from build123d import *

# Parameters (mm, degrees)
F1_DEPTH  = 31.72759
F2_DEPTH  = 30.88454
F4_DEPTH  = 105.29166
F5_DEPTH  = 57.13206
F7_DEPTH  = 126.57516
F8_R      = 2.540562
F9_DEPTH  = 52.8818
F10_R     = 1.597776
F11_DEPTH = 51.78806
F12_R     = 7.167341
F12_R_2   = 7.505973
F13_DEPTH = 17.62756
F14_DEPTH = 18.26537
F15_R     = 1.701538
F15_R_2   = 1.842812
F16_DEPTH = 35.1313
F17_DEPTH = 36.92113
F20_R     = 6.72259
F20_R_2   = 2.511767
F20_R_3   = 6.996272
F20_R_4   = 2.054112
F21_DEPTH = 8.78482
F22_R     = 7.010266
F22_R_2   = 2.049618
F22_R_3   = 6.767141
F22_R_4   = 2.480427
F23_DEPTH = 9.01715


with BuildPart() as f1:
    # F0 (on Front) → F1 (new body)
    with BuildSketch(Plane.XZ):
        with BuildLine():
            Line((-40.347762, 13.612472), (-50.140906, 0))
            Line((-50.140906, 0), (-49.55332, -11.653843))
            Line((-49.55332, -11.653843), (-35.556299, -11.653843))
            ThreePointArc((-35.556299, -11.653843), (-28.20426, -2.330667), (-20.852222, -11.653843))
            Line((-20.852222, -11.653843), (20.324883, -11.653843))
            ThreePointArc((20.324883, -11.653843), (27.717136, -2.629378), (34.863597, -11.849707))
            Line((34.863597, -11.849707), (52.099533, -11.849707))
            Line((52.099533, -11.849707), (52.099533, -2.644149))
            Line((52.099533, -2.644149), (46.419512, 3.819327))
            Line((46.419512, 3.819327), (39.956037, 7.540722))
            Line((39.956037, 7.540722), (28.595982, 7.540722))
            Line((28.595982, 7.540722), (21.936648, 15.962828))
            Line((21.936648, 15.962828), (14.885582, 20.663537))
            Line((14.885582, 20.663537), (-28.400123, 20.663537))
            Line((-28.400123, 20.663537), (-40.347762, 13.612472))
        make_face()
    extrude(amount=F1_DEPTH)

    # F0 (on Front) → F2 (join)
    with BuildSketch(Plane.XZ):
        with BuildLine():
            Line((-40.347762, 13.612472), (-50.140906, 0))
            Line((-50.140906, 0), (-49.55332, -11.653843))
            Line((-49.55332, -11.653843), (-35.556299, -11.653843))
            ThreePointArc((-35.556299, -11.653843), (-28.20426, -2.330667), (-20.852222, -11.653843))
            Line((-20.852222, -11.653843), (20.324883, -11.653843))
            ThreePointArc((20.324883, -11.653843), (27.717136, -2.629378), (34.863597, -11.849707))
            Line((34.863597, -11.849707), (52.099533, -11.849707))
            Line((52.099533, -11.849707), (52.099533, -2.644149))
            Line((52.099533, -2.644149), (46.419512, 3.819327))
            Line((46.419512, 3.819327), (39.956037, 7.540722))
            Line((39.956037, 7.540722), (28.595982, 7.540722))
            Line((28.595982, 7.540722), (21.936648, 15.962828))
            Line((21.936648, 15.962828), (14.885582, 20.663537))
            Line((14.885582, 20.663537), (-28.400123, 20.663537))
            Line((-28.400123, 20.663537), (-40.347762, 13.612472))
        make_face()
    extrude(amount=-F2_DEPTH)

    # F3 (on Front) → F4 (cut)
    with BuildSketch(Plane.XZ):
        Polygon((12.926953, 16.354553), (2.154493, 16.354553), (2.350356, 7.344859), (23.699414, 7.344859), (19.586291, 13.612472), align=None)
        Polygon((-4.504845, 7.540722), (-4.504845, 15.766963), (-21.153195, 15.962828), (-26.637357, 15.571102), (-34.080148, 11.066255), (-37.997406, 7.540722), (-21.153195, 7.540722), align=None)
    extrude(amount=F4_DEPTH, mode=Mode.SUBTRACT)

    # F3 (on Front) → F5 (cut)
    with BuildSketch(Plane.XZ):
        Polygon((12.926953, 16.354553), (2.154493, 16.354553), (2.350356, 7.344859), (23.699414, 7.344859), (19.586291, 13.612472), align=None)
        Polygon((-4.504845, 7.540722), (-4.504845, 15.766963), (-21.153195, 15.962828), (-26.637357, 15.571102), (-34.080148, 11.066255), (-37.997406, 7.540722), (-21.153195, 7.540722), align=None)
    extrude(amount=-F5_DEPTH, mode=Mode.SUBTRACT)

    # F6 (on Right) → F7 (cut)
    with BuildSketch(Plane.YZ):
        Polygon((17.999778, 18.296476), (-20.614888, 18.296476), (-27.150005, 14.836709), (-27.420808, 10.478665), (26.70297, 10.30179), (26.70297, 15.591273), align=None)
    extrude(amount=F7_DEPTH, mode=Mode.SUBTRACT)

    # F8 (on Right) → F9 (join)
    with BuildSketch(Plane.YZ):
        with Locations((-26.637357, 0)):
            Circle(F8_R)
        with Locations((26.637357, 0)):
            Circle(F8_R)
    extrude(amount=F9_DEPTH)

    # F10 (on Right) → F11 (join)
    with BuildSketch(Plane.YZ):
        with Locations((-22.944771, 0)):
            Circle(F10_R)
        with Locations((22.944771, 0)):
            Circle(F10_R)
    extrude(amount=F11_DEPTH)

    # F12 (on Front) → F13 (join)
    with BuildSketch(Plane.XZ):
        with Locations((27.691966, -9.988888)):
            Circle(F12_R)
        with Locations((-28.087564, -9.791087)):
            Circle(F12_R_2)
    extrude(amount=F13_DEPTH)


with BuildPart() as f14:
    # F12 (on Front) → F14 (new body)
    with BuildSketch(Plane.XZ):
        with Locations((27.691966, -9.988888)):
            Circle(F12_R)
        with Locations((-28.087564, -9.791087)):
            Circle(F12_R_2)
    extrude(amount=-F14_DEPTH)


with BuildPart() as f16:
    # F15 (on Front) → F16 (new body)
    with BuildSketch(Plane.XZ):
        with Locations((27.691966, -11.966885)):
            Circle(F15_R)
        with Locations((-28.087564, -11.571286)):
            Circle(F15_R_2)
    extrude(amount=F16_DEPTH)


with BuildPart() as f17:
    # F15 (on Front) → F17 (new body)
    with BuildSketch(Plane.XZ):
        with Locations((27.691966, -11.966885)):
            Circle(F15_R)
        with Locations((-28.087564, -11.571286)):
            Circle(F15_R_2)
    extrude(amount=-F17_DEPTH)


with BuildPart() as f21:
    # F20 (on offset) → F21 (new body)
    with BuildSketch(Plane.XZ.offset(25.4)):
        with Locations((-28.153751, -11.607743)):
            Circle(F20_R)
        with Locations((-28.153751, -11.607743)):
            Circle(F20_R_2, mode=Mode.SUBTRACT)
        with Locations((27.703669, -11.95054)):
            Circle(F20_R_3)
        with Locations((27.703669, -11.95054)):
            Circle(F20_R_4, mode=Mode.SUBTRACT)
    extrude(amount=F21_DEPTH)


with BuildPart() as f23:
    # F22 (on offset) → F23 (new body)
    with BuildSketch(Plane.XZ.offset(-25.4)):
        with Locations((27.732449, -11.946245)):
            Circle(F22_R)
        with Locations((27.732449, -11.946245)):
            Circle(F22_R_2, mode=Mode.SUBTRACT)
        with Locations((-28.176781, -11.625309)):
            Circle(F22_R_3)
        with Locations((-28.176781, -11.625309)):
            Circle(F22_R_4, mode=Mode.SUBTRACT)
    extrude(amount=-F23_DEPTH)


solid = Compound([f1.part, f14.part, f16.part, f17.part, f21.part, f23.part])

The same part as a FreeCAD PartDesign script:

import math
import FreeCAD as App
import Part
import Sketcher
from FreeCAD import Vector


def add_polygon(sketch, points):
    """Adds a closed chain of lines whose ends are joined by coincident constraints."""
    first, n = sketch.GeometryCount, len(points)
    for a, b in zip(points, points[1:] + points[:1]):
        sketch.addGeometry(Part.LineSegment(App.Vector(*a, 0), App.Vector(*b, 0)), False)
    for i in range(n):
        sketch.addConstraint(Sketcher.Constraint("Coincident", first + i, 2, first + (i + 1) % n, 1))

doc = App.newDocument("Part")
body = doc.addObject("PartDesign::Body", "Body")
body.AllowCompound = True

sketch1 = doc.addObject("Sketcher::SketchObject", "Sketch")
body.addObject(sketch1)
sketch1.AttachmentSupport = (doc.XZ_Plane, [""])
sketch1.MapMode = "FlatFace"
sketch1.addGeometry([
    Part.LineSegment(Vector(-40, 14, 0), Vector(-50, 0, 0)),
    Part.LineSegment(Vector(-50, 0, 0), Vector(-50, -12, 0)),
    Part.LineSegment(Vector(-50, -12, 0), Vector(-36, -12, 0)),
    Part.ArcOfCircle(Part.Circle(Vector(-28, -10, 0), Vector(0, 0, 1), 8), math.radians(-13), math.radians(193)),
    Part.LineSegment(Vector(-21, -12, 0), Vector(20, -12, 0)),
    Part.ArcOfCircle(Part.Circle(Vector(28, -10, 0), Vector(0, 0, 1), 7), math.radians(-14), math.radians(192)),
    Part.LineSegment(Vector(35, -12, 0), Vector(52, -12, 0)),
    Part.LineSegment(Vector(52, -12, 0), Vector(52, -3, 0)),
    Part.LineSegment(Vector(52, -3, 0), Vector(46, 4, 0)),
    Part.LineSegment(Vector(46, 4, 0), Vector(40, 8, 0)),
    Part.LineSegment(Vector(40, 8, 0), Vector(29, 8, 0)),
    Part.LineSegment(Vector(29, 8, 0), Vector(22, 16, 0)),
    Part.LineSegment(Vector(22, 16, 0), Vector(15, 21, 0)),
    Part.LineSegment(Vector(15, 21, 0), Vector(-28, 21, 0)),
    Part.LineSegment(Vector(-28, 21, 0), Vector(-40, 14, 0)),
], False)
sketch1.addConstraint([
    Sketcher.Constraint("Coincident", 0, 2, 1, 1),
    Sketcher.Constraint("Coincident", 1, 2, 2, 1),
    Sketcher.Constraint("Coincident", 2, 2, 3, 2),
    Sketcher.Constraint("Coincident", 3, 1, 4, 1),
    Sketcher.Constraint("Coincident", 4, 2, 5, 2),
    Sketcher.Constraint("Coincident", 5, 1, 6, 1),
    Sketcher.Constraint("Coincident", 6, 2, 7, 1),
    Sketcher.Constraint("Coincident", 7, 2, 8, 1),
    Sketcher.Constraint("Coincident", 8, 2, 9, 1),
    Sketcher.Constraint("Coincident", 9, 2, 10, 1),
    Sketcher.Constraint("Coincident", 10, 2, 11, 1),
    Sketcher.Constraint("Coincident", 11, 2, 12, 1),
    Sketcher.Constraint("Coincident", 12, 2, 13, 1),
    Sketcher.Constraint("Coincident", 13, 2, 14, 1),
    Sketcher.Constraint("Coincident", 14, 2, 0, 1),
    Sketcher.Constraint("Horizontal", 2),
    Sketcher.Constraint("Horizontal", 4),
    Sketcher.Constraint("Horizontal", 6),
    Sketcher.Constraint("Vertical", 7),
    Sketcher.Constraint("Horizontal", 10),
    Sketcher.Constraint("Horizontal", 13),
    Sketcher.Constraint("PointOnObject", 0, 2, -1),
    Sketcher.Constraint("Horizontal", 2, 2, 3, 1),
    Sketcher.Constraint("Radius", 3, 7.560411),
    Sketcher.Constraint("Radius", 5, 7.458238),
    Sketcher.Constraint("Distance", 8, 8.604601),
    Sketcher.Constraint("DistanceX", 2, 1, 2, 2, 13.997021),
    Sketcher.Constraint("DistanceX", 2, 2, -1, 1, 35.556299),
    Sketcher.Constraint("DistanceX", 1, 2, 3, 1, 28.701098),
    Sketcher.Constraint("DistanceX", 4, 2, 10, 2, 8.271099),
    Sketcher.Constraint("DistanceY", 8, 2, 11, 2, 12.143501),
    Sketcher.Constraint("DistanceX", 12, 2, 10, 2, 13.7104),
    Sketcher.Constraint("DistanceX", 13, 2, 3, 1, 7.547901),
    Sketcher.Constraint("DistanceX", 14, 2, 3, 3, 12.143502),
    Sketcher.Constraint("Distance", 0, 16.76917),
    Sketcher.Constraint("DistanceX", 4, 1, 4, 2, 41.177105),
    Sketcher.Constraint("DistanceX", 6, 1, 6, 2, 17.235936),
    Sketcher.Constraint("DistanceX", 10, 2, 10, 1, 11.360055),
    Sketcher.Constraint("DistanceY", 7, 1, 7, 2, 9.205558),
    Sketcher.Constraint("DistanceX", -1, 1, 5, 3, 27.616668),
    Sketcher.Constraint("DistanceY", 5, 3, -1, 1, 10.08694),
    Sketcher.Constraint("DistanceY", 7, 2, -1, 1, 2.644149),
    Sketcher.Constraint("DistanceX", -1, 1, 8, 2, 46.419512),
    Sketcher.Constraint("DistanceY", -1, 1, 9, 2, 7.540722),
    Sketcher.Constraint("DistanceX", -1, 1, 11, 2, 21.936648),
    Sketcher.Constraint("DistanceY", 11, 2, 12, 2, 4.700709),
    Sketcher.Constraint("DistanceY", 3, 3, 14, 2, 23.50355),
])
pad1 = doc.addObject("PartDesign::Pad", "Pad")
body.addObject(pad1)
pad1.Profile = sketch1
pad1.Length = 31.72759

sketch2 = doc.addObject("Sketcher::SketchObject", "Sketch001")
body.addObject(sketch2)
sketch2.AttachmentSupport = (doc.XZ_Plane, [""])
sketch2.MapMode = "FlatFace"
sketch2.addGeometry([
    Part.LineSegment(Vector(-40, 14, 0), Vector(-50, 0, 0)),
    Part.LineSegment(Vector(-50, 0, 0), Vector(-50, -12, 0)),
    Part.LineSegment(Vector(-50, -12, 0), Vector(-36, -12, 0)),
    Part.ArcOfCircle(Part.Circle(Vector(-28, -10, 0), Vector(0, 0, 1), 8), math.radians(-13), math.radians(193)),
    Part.LineSegment(Vector(-21, -12, 0), Vector(20, -12, 0)),
    Part.ArcOfCircle(Part.Circle(Vector(28, -10, 0), Vector(0, 0, 1), 7), math.radians(-14), math.radians(192)),
    Part.LineSegment(Vector(35, -12, 0), Vector(52, -12, 0)),
    Part.LineSegment(Vector(52, -12, 0), Vector(52, -3, 0)),
    Part.LineSegment(Vector(52, -3, 0), Vector(46, 4, 0)),
    Part.LineSegment(Vector(46, 4, 0), Vector(40, 8, 0)),
    Part.LineSegment(Vector(40, 8, 0), Vector(29, 8, 0)),
    Part.LineSegment(Vector(29, 8, 0), Vector(22, 16, 0)),
    Part.LineSegment(Vector(22, 16, 0), Vector(15, 21, 0)),
    Part.LineSegment(Vector(15, 21, 0), Vector(-28, 21, 0)),
    Part.LineSegment(Vector(-28, 21, 0), Vector(-40, 14, 0)),
], False)
sketch2.addConstraint([
    Sketcher.Constraint("Coincident", 0, 2, 1, 1),
    Sketcher.Constraint("Coincident", 1, 2, 2, 1),
    Sketcher.Constraint("Coincident", 2, 2, 3, 2),
    Sketcher.Constraint("Coincident", 3, 1, 4, 1),
    Sketcher.Constraint("Coincident", 4, 2, 5, 2),
    Sketcher.Constraint("Coincident", 5, 1, 6, 1),
    Sketcher.Constraint("Coincident", 6, 2, 7, 1),
    Sketcher.Constraint("Coincident", 7, 2, 8, 1),
    Sketcher.Constraint("Coincident", 8, 2, 9, 1),
    Sketcher.Constraint("Coincident", 9, 2, 10, 1),
    Sketcher.Constraint("Coincident", 10, 2, 11, 1),
    Sketcher.Constraint("Coincident", 11, 2, 12, 1),
    Sketcher.Constraint("Coincident", 12, 2, 13, 1),
    Sketcher.Constraint("Coincident", 13, 2, 14, 1),
    Sketcher.Constraint("Coincident", 14, 2, 0, 1),
    Sketcher.Constraint("Horizontal", 2),
    Sketcher.Constraint("Horizontal", 4),
    Sketcher.Constraint("Horizontal", 6),
    Sketcher.Constraint("Vertical", 7),
    Sketcher.Constraint("Horizontal", 10),
    Sketcher.Constraint("Horizontal", 13),
    Sketcher.Constraint("PointOnObject", 0, 2, -1),
    Sketcher.Constraint("Horizontal", 2, 2, 3, 1),
    Sketcher.Constraint("Radius", 3, 7.560411),
    Sketcher.Constraint("Radius", 5, 7.458238),
    Sketcher.Constraint("Distance", 8, 8.604601),
    Sketcher.Constraint("DistanceX", 2, 1, 2, 2, 13.997021),
    Sketcher.Constraint("DistanceX", 2, 2, -1, 1, 35.556299),
    Sketcher.Constraint("DistanceX", 1, 2, 3, 1, 28.701098),
    Sketcher.Constraint("DistanceX", 4, 2, 10, 2, 8.271099),
    Sketcher.Constraint("DistanceY", 8, 2, 11, 2, 12.143501),
    Sketcher.Constraint("DistanceX", 12, 2, 10, 2, 13.7104),
    Sketcher.Constraint("DistanceX", 13, 2, 3, 1, 7.547901),
    Sketcher.Constraint("DistanceX", 14, 2, 3, 3, 12.143502),
    Sketcher.Constraint("Distance", 0, 16.76917),
    Sketcher.Constraint("DistanceX", 4, 1, 4, 2, 41.177105),
    Sketcher.Constraint("DistanceX", 6, 1, 6, 2, 17.235936),
    Sketcher.Constraint("DistanceX", 10, 2, 10, 1, 11.360055),
    Sketcher.Constraint("DistanceY", 7, 1, 7, 2, 9.205558),
    Sketcher.Constraint("DistanceX", -1, 1, 5, 3, 27.616668),
    Sketcher.Constraint("DistanceY", 5, 3, -1, 1, 10.08694),
    Sketcher.Constraint("DistanceY", 7, 2, -1, 1, 2.644149),
    Sketcher.Constraint("DistanceX", -1, 1, 8, 2, 46.419512),
    Sketcher.Constraint("DistanceY", -1, 1, 9, 2, 7.540722),
    Sketcher.Constraint("DistanceX", -1, 1, 11, 2, 21.936648),
    Sketcher.Constraint("DistanceY", 11, 2, 12, 2, 4.700709),
    Sketcher.Constraint("DistanceY", 3, 3, 14, 2, 23.50355),
])
pad2 = doc.addObject("PartDesign::Pad", "Pad001")
body.addObject(pad2)
pad2.Profile = sketch2
pad2.Length = 30.88454
pad2.Reversed = True

sketch3 = doc.addObject("Sketcher::SketchObject", "Sketch002")
body.addObject(sketch3)
sketch3.AttachmentSupport = (doc.XZ_Plane, [""])
sketch3.MapMode = "FlatFace"
add_polygon(sketch3, [(13, 16), (2, 16), (2, 7), (24, 7), (20, 14)])
add_polygon(sketch3, [(-5, 8), (-5, 16), (-21, 16), (-27, 16), (-34, 11), (-38, 8)])
sketch3.addConstraint([
    Sketcher.Constraint("Horizontal", 0),
    Sketcher.Constraint("Horizontal", 2),
    Sketcher.Constraint("Vertical", 5),
    Sketcher.Constraint("Horizontal", 10),
    Sketcher.Constraint("DistanceX", 0, 2, 0, 1, 10.77246),
    Sketcher.Constraint("DistanceX", 10, 1, 10, 2, 33.492561),
    Sketcher.Constraint("DistanceY", 5, 1, 5, 2, 8.226241),
    Sketcher.Constraint("DistanceX", 0, 2, 3, 2, 17.431798),
    Sketcher.Constraint("DistanceX", 5, 2, 1, 2, 6.855201),
    Sketcher.Constraint("DistanceX", 5, 2, 4, 2, 17.431798),
    Sketcher.Constraint("Distance", 4, 7.201791),
    Sketcher.Constraint("Distance", 8, 8.69993),
    Sketcher.Constraint("DistanceX", 2, 1, 2, 2, 21.349058),
    Sketcher.Constraint("DistanceY", -1, 1, 1, 2, 7.344859),
    Sketcher.Constraint("DistanceX", -1, 1, 3, 2, 19.586291),
    Sketcher.Constraint("DistanceY", -1, 1, 9, 2, 7.540722),
    Sketcher.Constraint("DistanceY", 5, 2, 0, 2, 0.58759),
    Sketcher.Constraint("DistanceX", 6, 2, 5, 2, 16.64835),
    Sketcher.Constraint("DistanceY", 1, 2, 6, 2, 8.617969),
    Sketcher.Constraint("DistanceY", 7, 2, 5, 2, 0.195861),
    Sketcher.Constraint("DistanceX", 7, 2, 0, 2, 28.79185),
    Sketcher.Constraint("DistanceX", 8, 2, 7, 2, 7.442791),
])
pocket1 = doc.addObject("PartDesign::Pocket", "Pocket")
body.addObject(pocket1)
pocket1.Profile = sketch3
pocket1.Length = 105.29166
pocket1.Reversed = True

sketch4 = doc.addObject("Sketcher::SketchObject", "Sketch003")
body.addObject(sketch4)
sketch4.AttachmentSupport = (doc.XZ_Plane, [""])
sketch4.MapMode = "FlatFace"
add_polygon(sketch4, [(13, 16), (2, 16), (2, 7), (24, 7), (20, 14)])
add_polygon(sketch4, [(-5, 8), (-5, 16), (-21, 16), (-27, 16), (-34, 11), (-38, 8)])
sketch4.addConstraint([
    Sketcher.Constraint("Horizontal", 0),
    Sketcher.Constraint("Horizontal", 2),
    Sketcher.Constraint("Vertical", 5),
    Sketcher.Constraint("Horizontal", 10),
    Sketcher.Constraint("DistanceX", 0, 2, 0, 1, 10.77246),
    Sketcher.Constraint("DistanceX", 10, 1, 10, 2, 33.492561),
    Sketcher.Constraint("DistanceY", 5, 1, 5, 2, 8.226241),
    Sketcher.Constraint("DistanceX", 0, 2, 3, 2, 17.431798),
    Sketcher.Constraint("DistanceX", 5, 2, 1, 2, 6.855201),
    Sketcher.Constraint("DistanceX", 5, 2, 4, 2, 17.431798),
    Sketcher.Constraint("Distance", 4, 7.201791),
    Sketcher.Constraint("Distance", 8, 8.69993),
    Sketcher.Constraint("DistanceX", 2, 1, 2, 2, 21.349058),
    Sketcher.Constraint("DistanceY", -1, 1, 1, 2, 7.344859),
    Sketcher.Constraint("DistanceX", -1, 1, 3, 2, 19.586291),
    Sketcher.Constraint("DistanceY", -1, 1, 9, 2, 7.540722),
    Sketcher.Constraint("DistanceY", 5, 2, 0, 2, 0.58759),
    Sketcher.Constraint("DistanceX", 6, 2, 5, 2, 16.64835),
    Sketcher.Constraint("DistanceY", 1, 2, 6, 2, 8.617969),
    Sketcher.Constraint("DistanceY", 7, 2, 5, 2, 0.195861),
    Sketcher.Constraint("DistanceX", 7, 2, 0, 2, 28.79185),
    Sketcher.Constraint("DistanceX", 8, 2, 7, 2, 7.442791),
])
pocket2 = doc.addObject("PartDesign::Pocket", "Pocket001")
body.addObject(pocket2)
pocket2.Profile = sketch4
pocket2.Length = 57.13206

sketch5 = doc.addObject("Sketcher::SketchObject", "Sketch004")
body.addObject(sketch5)
sketch5.AttachmentSupport = (doc.YZ_Plane, [""])
sketch5.MapMode = "FlatFace"
add_polygon(sketch5, [(18, 18.3), (-20.6, 18.3), (-27.2, 14.8), (-27.4, 10.5), (26.7, 10.3), (26.7, 15.6)])
sketch5.addConstraint([
    Sketcher.Constraint("Horizontal", 0),
    Sketcher.Constraint("Vertical", 4),
    Sketcher.Constraint("Distance", 1, 7.39444),
    Sketcher.Constraint("Distance", 2, 4.36645),
    Sketcher.Constraint("DistanceX", 0, 2, 0, 1, 38.614666),
    Sketcher.Constraint("DistanceY", 4, 1, 4, 2, 5.289483),
    Sketcher.Constraint("DistanceX", 0, 2, -1, 1, 20.614888),
    Sketcher.Constraint("DistanceY", -1, 1, 1, 2, 14.836709),
    Sketcher.Constraint("DistanceX", 2, 2, -1, 1, 27.420808),
    Sketcher.Constraint("DistanceX", -1, 1, 3, 2, 26.70297),
    Sketcher.Constraint("DistanceY", -1, 1, 3, 2, 10.30179),
    Sketcher.Constraint("DistanceY", 2, 2, 0, 2, 7.817811),
])
pocket3 = doc.addObject("PartDesign::Pocket", "Pocket002")
body.addObject(pocket3)
pocket3.Profile = sketch5
pocket3.Length = 126.57516
pocket3.Reversed = True

sketch6 = doc.addObject("Sketcher::SketchObject", "Sketch005")
body.addObject(sketch6)
sketch6.AttachmentSupport = (doc.YZ_Plane, [""])
sketch6.MapMode = "FlatFace"
sketch6.addGeometry([
    Part.Circle(Vector(-26.6, 0, 0), Vector(0, 0, 1), 2.5),
    Part.Circle(Vector(26.6, 0, 0), Vector(0, 0, 1), 2.5),
], False)
sketch6.addConstraint([
    Sketcher.Constraint("Equal", 0, 1),
    Sketcher.Constraint("Symmetric", 0, 3, 1, 3, -1, 1),
    Sketcher.Constraint("PointOnObject", 0, 3, -1),
    Sketcher.Constraint("Diameter", 0, 5.081124),
    Sketcher.Constraint("DistanceX", 0, 3, -1, 1, 26.637357),
])
pad3 = doc.addObject("PartDesign::Pad", "Pad002")
body.addObject(pad3)
pad3.Profile = sketch6
pad3.Length = 52.8818

sketch7 = doc.addObject("Sketcher::SketchObject", "Sketch006")
body.addObject(sketch7)
sketch7.AttachmentSupport = (doc.YZ_Plane, [""])
sketch7.MapMode = "FlatFace"
sketch7.addGeometry([
    Part.Circle(Vector(-22.9, 0, 0), Vector(0, 0, 1), 1.6),
    Part.Circle(Vector(22.9, 0, 0), Vector(0, 0, 1), 1.6),
], False)
sketch7.addConstraint([
    Sketcher.Constraint("Equal", 0, 1),
    Sketcher.Constraint("Symmetric", 0, 3, 1, 3, -1, 1),
    Sketcher.Constraint("PointOnObject", 0, 3, -1),
    Sketcher.Constraint("Diameter", 0, 3.195552),
    Sketcher.Constraint("DistanceX", 0, 3, -1, 1, 22.944771),
])
pad4 = doc.addObject("PartDesign::Pad", "Pad003")
body.addObject(pad4)
pad4.Profile = sketch7
pad4.Length = 51.78806

sketch8 = doc.addObject("Sketcher::SketchObject", "Sketch007")
body.addObject(sketch8)
sketch8.AttachmentSupport = (doc.XZ_Plane, [""])
sketch8.MapMode = "FlatFace"
sketch8.addGeometry([
    Part.Circle(Vector(28, -10, 0), Vector(0, 0, 1), 7),
    Part.Circle(Vector(-28, -10, 0), Vector(0, 0, 1), 8),
], False)
sketch8.addConstraint([
    Sketcher.Constraint("Diameter", 0, 14.334682),
    Sketcher.Constraint("Diameter", 1, 15.011946),
    Sketcher.Constraint("DistanceY", 0, 3, 1, 3, 0.197801),
    Sketcher.Constraint("DistanceX", 1, 3, 0, 3, 55.77953),
    Sketcher.Constraint("DistanceX", -1, 1, 0, 3, 27.691966),
    Sketcher.Constraint("DistanceY", 0, 3, -1, 1, 9.988888),
])
pad5 = doc.addObject("PartDesign::Pad", "Pad004")
body.addObject(pad5)
pad5.Profile = sketch8
pad5.Length = 17.62756
body2 = doc.addObject("PartDesign::Body", "Body001")
body2.AllowCompound = True

sketch9 = doc.addObject("Sketcher::SketchObject", "Sketch008")
body2.addObject(sketch9)
sketch9.AttachmentSupport = (doc.getObject("XZ_Plane001"), [""])
sketch9.MapMode = "FlatFace"
sketch9.addGeometry([
    Part.Circle(Vector(28, -10, 0), Vector(0, 0, 1), 7),
    Part.Circle(Vector(-28, -10, 0), Vector(0, 0, 1), 8),
], False)
sketch9.addConstraint([
    Sketcher.Constraint("Diameter", 0, 14.334682),
    Sketcher.Constraint("Diameter", 1, 15.011946),
    Sketcher.Constraint("DistanceY", 0, 3, 1, 3, 0.197801),
    Sketcher.Constraint("DistanceX", 1, 3, 0, 3, 55.77953),
    Sketcher.Constraint("DistanceX", -1, 1, 0, 3, 27.691966),
    Sketcher.Constraint("DistanceY", 0, 3, -1, 1, 9.988888),
])
pad6 = doc.addObject("PartDesign::Pad", "Pad005")
body2.addObject(pad6)
pad6.Profile = sketch9
pad6.Length = 18.26537
pad6.Reversed = True
body3 = doc.addObject("PartDesign::Body", "Body002")
body3.AllowCompound = True

sketch10 = doc.addObject("Sketcher::SketchObject", "Sketch009")
body3.addObject(sketch10)
sketch10.AttachmentSupport = (doc.getObject("XZ_Plane002"), [""])
sketch10.MapMode = "FlatFace"
sketch10.addGeometry([
    Part.Circle(Vector(27.7, -12, 0), Vector(0, 0, 1), 1.7),
    Part.Circle(Vector(-28.1, -11.6, 0), Vector(0, 0, 1), 1.8),
], False)
sketch10.addConstraint([
    Sketcher.Constraint("Diameter", 0, 3.403076),
    Sketcher.Constraint("Diameter", 1, 3.685624),
    Sketcher.Constraint("DistanceY", 0, 3, 1, 3, 0.395599),
    Sketcher.Constraint("DistanceX", 1, 3, 0, 3, 55.77953),
    Sketcher.Constraint("DistanceX", -1, 1, 0, 3, 27.691966),
    Sketcher.Constraint("DistanceY", 0, 3, -1, 1, 11.966885),
])
pad7 = doc.addObject("PartDesign::Pad", "Pad006")
body3.addObject(pad7)
pad7.Profile = sketch10
pad7.Length = 35.1313
body4 = doc.addObject("PartDesign::Body", "Body003")
body4.AllowCompound = True

sketch11 = doc.addObject("Sketcher::SketchObject", "Sketch010")
body4.addObject(sketch11)
sketch11.AttachmentSupport = (doc.getObject("XZ_Plane003"), [""])
sketch11.MapMode = "FlatFace"
sketch11.addGeometry([
    Part.Circle(Vector(27.7, -12, 0), Vector(0, 0, 1), 1.7),
    Part.Circle(Vector(-28.1, -11.6, 0), Vector(0, 0, 1), 1.8),
], False)
sketch11.addConstraint([
    Sketcher.Constraint("Diameter", 0, 3.403076),
    Sketcher.Constraint("Diameter", 1, 3.685624),
    Sketcher.Constraint("DistanceY", 0, 3, 1, 3, 0.395599),
    Sketcher.Constraint("DistanceX", 1, 3, 0, 3, 55.77953),
    Sketcher.Constraint("DistanceX", -1, 1, 0, 3, 27.691966),
    Sketcher.Constraint("DistanceY", 0, 3, -1, 1, 11.966885),
])
pad8 = doc.addObject("PartDesign::Pad", "Pad007")
body4.addObject(pad8)
pad8.Profile = sketch11
pad8.Length = 36.92113
pad8.Reversed = True
body5 = doc.addObject("PartDesign::Body", "Body004")
body5.AllowCompound = True

sketch12 = doc.addObject("Sketcher::SketchObject", "Sketch011")
body5.addObject(sketch12)
sketch12.AttachmentSupport = (doc.getObject("XZ_Plane004"), [""])
sketch12.MapMode = "FlatFace"
sketch12.AttachmentOffset = App.Placement(Vector(0, 0, 25.4), App.Rotation())
sketch12.addGeometry([
    Part.Circle(Vector(-28.2, -11.6, 0), Vector(0, 0, 1), 6.7),
    Part.Circle(Vector(-28.2, -11.6, 0), Vector(0, 0, 1), 2.5),
    Part.Circle(Vector(27.7, -12, 0), Vector(0, 0, 1), 7),
    Part.Circle(Vector(27.7, -12, 0), Vector(0, 0, 1), 2.1),
], False)
sketch12.addConstraint([
    Sketcher.Constraint("Coincident", 1, 3, 0, 3),
    Sketcher.Constraint("Coincident", 3, 3, 2, 3),
    Sketcher.Constraint("Diameter", 0, 13.44518),
    Sketcher.Constraint("Diameter", 1, 5.023534),
    Sketcher.Constraint("Diameter", 2, 13.992544),
    Sketcher.Constraint("Diameter", 3, 4.108224),
    Sketcher.Constraint("DistanceX", 0, 3, -1, 1, 28.153751),
    Sketcher.Constraint("DistanceX", -1, 1, 2, 3, 27.703669),
    Sketcher.Constraint("DistanceY", 2, 3, -1, 1, 11.95054),
    Sketcher.Constraint("DistanceY", 0, 3, -1, 1, 11.607743),
])
pad9 = doc.addObject("PartDesign::Pad", "Pad008")
body5.addObject(pad9)
pad9.Profile = sketch12
pad9.Length = 8.78482
body6 = doc.addObject("PartDesign::Body", "Body005")
body6.AllowCompound = True

sketch13 = doc.addObject("Sketcher::SketchObject", "Sketch012")
body6.addObject(sketch13)
sketch13.AttachmentSupport = (doc.getObject("XZ_Plane005"), [""])
sketch13.MapMode = "FlatFace"
sketch13.AttachmentOffset = App.Placement(Vector(0, 0, -25.4), App.Rotation())
sketch13.addGeometry([
    Part.Circle(Vector(27.7, -11.9, 0), Vector(0, 0, 1), 7),
    Part.Circle(Vector(27.7, -11.9, 0), Vector(0, 0, 1), 2),
    Part.Circle(Vector(-28.2, -11.6, 0), Vector(0, 0, 1), 6.8),
    Part.Circle(Vector(-28.2, -11.6, 0), Vector(0, 0, 1), 2.5),
], False)
sketch13.addConstraint([
    Sketcher.Constraint("Coincident", 1, 3, 0, 3),
    Sketcher.Constraint("Coincident", 3, 3, 2, 3),
    Sketcher.Constraint("Diameter", 0, 14.020532),
    Sketcher.Constraint("Diameter", 2, 13.534282),
    Sketcher.Constraint("Diameter", 1, 4.099236),
    Sketcher.Constraint("Diameter", 3, 4.960854),
    Sketcher.Constraint("DistanceX", -1, 1, 0, 3, 27.732449),
    Sketcher.Constraint("DistanceX", 2, 3, -1, 1, 28.176781),
    Sketcher.Constraint("DistanceY", 2, 3, -1, 1, 11.625309),
    Sketcher.Constraint("DistanceY", 0, 3, -1, 1, 11.946245),
])
pad10 = doc.addObject("PartDesign::Pad", "Pad009")
body6.addObject(pad10)
pad10.Profile = sketch13
pad10.Length = 9.01715
pad10.Reversed = True

doc.recompute()
